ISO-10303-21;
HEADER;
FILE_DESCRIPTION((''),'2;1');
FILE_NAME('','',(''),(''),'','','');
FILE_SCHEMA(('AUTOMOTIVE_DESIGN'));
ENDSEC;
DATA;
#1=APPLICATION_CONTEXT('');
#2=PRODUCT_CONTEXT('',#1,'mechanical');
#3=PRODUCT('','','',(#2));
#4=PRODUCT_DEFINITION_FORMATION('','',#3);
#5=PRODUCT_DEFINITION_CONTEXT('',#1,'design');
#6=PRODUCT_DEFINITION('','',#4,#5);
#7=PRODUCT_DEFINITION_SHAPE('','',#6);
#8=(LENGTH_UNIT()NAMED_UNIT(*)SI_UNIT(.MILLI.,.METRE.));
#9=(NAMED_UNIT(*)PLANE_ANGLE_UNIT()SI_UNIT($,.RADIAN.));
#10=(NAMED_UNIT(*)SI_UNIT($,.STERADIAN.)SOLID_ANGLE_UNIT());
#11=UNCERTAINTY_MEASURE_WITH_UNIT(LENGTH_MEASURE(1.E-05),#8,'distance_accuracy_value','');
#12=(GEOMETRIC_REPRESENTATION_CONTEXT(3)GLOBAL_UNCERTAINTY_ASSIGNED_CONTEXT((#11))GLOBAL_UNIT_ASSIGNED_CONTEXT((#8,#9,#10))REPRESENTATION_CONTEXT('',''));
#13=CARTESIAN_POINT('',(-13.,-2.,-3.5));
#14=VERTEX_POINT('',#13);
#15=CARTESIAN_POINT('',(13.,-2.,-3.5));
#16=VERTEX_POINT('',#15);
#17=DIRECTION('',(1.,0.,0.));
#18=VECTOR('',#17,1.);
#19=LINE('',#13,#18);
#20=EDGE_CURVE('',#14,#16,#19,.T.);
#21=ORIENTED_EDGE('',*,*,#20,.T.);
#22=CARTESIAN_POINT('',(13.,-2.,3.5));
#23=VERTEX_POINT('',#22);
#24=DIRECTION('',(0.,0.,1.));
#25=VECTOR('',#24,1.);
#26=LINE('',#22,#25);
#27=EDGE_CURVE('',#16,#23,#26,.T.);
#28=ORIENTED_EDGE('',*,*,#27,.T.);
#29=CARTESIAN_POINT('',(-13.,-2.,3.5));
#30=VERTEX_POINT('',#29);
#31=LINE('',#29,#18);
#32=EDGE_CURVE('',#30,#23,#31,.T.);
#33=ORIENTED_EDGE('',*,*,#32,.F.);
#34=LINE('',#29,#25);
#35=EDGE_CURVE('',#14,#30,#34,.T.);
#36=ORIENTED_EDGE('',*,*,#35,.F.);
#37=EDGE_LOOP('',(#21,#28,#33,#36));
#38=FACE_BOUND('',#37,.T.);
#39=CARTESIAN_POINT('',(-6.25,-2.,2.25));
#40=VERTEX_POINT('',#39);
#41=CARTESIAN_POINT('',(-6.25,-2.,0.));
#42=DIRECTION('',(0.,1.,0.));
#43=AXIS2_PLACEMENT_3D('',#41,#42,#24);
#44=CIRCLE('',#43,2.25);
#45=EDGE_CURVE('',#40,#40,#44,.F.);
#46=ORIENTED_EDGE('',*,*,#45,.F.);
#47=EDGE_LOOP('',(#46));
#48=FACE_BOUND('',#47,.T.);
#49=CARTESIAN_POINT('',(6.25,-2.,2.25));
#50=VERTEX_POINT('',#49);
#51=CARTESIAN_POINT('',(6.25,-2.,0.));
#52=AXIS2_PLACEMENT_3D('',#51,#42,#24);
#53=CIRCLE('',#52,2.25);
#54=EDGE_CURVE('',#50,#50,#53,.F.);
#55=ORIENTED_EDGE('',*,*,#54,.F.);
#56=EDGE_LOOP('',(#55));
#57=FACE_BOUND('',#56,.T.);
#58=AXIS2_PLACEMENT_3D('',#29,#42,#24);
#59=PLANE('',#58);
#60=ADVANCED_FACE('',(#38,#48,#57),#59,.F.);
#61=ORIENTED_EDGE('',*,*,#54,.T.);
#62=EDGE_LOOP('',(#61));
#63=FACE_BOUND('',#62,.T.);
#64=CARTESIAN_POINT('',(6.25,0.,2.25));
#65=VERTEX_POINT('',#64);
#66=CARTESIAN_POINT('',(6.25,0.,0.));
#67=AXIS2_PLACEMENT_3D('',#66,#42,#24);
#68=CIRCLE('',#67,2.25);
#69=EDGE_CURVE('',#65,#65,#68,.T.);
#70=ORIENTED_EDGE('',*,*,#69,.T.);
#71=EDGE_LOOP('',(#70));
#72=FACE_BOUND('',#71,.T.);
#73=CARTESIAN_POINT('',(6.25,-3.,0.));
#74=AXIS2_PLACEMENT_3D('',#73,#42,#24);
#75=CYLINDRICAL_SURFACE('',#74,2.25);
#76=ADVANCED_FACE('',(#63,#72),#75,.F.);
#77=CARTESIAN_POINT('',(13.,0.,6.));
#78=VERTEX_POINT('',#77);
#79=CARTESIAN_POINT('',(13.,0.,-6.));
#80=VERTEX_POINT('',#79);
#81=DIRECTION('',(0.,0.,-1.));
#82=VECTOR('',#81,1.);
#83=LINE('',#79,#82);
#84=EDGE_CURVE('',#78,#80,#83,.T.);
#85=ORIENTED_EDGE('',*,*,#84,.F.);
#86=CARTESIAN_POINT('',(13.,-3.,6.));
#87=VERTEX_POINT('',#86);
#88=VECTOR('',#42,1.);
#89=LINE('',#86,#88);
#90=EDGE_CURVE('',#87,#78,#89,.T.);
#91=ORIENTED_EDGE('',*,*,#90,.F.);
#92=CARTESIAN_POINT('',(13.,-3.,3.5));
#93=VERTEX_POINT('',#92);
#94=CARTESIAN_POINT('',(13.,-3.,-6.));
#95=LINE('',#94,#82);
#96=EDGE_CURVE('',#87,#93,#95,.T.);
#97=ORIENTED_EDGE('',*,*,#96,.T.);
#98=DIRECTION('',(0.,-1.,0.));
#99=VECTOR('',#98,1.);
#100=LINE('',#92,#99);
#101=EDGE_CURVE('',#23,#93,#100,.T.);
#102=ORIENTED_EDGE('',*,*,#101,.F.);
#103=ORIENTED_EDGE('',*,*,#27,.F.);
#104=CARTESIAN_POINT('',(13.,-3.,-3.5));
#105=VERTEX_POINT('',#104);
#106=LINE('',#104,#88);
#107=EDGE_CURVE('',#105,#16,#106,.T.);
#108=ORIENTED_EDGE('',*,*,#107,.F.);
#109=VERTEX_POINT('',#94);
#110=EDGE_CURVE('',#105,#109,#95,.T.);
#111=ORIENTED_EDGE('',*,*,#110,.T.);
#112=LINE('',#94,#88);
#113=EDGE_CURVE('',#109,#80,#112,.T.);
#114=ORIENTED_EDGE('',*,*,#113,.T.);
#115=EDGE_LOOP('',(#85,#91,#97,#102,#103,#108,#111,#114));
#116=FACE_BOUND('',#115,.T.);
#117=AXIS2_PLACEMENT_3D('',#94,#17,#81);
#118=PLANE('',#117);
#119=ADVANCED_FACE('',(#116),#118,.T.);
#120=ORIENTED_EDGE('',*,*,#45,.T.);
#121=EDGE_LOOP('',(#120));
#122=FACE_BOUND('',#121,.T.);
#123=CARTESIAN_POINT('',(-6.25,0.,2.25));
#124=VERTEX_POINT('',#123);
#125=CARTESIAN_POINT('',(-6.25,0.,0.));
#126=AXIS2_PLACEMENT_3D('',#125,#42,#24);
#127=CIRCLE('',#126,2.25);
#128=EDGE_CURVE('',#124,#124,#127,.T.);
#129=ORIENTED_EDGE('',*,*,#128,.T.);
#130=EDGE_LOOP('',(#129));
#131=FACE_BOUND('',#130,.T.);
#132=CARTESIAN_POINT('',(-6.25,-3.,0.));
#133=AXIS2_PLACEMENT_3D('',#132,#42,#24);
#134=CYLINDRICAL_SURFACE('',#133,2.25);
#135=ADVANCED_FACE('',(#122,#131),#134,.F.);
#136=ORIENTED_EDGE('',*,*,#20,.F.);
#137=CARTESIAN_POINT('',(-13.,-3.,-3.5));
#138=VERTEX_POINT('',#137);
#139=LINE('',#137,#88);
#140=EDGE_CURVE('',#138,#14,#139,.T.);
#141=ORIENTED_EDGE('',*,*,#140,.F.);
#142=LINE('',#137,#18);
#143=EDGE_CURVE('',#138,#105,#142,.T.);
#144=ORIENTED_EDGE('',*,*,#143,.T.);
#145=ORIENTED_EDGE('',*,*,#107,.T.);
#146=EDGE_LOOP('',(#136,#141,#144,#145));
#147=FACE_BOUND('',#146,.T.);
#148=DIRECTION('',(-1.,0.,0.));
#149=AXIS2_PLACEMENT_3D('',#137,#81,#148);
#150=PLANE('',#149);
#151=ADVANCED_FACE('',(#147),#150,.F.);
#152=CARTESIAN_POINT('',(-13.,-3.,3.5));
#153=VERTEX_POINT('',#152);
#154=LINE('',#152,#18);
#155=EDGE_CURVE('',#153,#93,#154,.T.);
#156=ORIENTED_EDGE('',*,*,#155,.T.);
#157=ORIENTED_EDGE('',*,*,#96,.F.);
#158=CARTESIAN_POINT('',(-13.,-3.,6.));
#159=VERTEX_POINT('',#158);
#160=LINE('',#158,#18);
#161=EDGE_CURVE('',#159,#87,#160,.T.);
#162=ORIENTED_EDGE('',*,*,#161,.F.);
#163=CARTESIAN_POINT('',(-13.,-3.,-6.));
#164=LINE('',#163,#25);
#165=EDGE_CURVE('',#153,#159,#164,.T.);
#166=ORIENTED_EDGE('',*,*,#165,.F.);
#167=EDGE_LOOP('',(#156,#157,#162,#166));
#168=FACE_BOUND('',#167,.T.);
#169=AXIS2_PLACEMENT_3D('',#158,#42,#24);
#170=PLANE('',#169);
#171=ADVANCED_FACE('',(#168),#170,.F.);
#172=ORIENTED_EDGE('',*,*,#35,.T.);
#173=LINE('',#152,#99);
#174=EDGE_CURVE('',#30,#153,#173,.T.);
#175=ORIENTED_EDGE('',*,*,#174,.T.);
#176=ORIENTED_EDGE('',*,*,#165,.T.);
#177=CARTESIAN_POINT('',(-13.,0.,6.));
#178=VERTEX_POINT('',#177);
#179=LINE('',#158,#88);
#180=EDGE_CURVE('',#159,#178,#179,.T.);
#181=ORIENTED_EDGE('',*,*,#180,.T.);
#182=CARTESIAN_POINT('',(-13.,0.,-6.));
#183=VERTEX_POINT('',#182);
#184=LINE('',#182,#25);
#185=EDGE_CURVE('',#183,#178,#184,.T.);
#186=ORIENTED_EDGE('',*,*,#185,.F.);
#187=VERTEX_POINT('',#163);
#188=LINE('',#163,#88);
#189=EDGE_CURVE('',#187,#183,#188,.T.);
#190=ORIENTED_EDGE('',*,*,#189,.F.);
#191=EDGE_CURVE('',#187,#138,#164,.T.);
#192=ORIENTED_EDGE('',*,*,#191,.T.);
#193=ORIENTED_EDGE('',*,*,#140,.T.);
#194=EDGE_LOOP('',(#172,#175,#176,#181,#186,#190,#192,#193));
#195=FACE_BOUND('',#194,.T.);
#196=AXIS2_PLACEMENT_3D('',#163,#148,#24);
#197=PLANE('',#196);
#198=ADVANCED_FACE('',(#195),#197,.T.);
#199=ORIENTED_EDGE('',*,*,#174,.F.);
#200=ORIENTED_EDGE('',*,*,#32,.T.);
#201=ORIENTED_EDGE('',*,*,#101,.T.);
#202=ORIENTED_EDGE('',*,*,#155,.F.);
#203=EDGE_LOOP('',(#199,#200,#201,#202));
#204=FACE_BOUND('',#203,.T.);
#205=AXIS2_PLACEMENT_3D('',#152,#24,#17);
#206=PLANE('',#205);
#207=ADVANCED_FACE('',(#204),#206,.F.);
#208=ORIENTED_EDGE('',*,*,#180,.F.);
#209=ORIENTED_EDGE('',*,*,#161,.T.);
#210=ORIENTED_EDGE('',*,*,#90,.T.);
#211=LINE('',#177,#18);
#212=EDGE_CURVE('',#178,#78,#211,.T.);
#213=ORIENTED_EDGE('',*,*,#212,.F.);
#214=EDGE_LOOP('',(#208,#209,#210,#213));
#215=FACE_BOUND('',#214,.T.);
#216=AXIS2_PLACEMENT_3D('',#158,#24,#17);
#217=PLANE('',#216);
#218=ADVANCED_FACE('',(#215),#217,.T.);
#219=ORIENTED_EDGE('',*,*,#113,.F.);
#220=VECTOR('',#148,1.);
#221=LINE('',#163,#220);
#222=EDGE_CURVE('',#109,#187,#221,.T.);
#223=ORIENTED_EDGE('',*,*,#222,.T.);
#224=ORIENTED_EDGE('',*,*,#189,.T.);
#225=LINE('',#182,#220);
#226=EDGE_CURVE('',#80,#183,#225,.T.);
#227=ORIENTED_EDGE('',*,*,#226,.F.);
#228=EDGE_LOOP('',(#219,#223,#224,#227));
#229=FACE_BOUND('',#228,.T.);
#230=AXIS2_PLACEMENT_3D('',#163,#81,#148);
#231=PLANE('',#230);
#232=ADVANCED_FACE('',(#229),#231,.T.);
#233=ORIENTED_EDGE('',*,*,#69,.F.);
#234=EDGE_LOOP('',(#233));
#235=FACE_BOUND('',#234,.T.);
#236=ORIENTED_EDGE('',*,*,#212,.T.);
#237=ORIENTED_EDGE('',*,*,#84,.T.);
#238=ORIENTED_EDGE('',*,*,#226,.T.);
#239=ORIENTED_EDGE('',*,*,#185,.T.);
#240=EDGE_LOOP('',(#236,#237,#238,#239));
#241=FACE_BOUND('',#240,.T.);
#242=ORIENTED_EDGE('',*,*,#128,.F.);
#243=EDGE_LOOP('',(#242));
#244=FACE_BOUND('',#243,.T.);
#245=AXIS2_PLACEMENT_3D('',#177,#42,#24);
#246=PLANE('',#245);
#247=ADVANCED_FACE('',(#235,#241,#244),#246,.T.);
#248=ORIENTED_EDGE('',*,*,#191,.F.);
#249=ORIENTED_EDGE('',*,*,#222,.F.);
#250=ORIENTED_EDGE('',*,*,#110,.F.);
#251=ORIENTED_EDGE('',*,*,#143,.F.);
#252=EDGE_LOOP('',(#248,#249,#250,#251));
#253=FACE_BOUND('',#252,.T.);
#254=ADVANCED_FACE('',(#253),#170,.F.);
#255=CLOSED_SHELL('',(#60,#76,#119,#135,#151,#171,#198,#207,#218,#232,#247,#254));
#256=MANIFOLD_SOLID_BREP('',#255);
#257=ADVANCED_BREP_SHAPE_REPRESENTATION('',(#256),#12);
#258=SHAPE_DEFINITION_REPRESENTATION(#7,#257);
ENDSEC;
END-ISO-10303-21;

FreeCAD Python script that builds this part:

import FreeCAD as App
import Part
import Sketcher
Q = App.Units.Quantity

doc = App.newDocument("Part")
body = doc.addObject("PartDesign::Body", "Body")

sketch1 = doc.addObject("Sketcher::SketchObject", "Sketch")
body.addObject(sketch1)
sketch1.AttachmentSupport = (doc.XZ_Plane, [""])
sketch1.MapMode = "FlatFace"
sketch1.addGeometry(Part.LineSegment(App.Vector(-13, -6, 0), App.Vector(-13, 6, 0)), False)
sketch1.addGeometry(Part.LineSegment(App.Vector(-13, 6, 0), App.Vector(13, 6, 0)), False)
sketch1.addGeometry(Part.LineSegment(App.Vector(13, 6, 0), App.Vector(13, -6, 0)), False)
sketch1.addGeometry(Part.LineSegment(App.Vector(13, -6, 0), App.Vector(-13, -6, 0)), False)
sketch1.addConstraint(Sketcher.Constraint("Coincident", 0, 2, 1, 1))
sketch1.addConstraint(Sketcher.Constraint("Coincident", 1, 2, 2, 1))
sketch1.addConstraint(Sketcher.Constraint("Coincident", 2, 2, 3, 1))
sketch1.addConstraint(Sketcher.Constraint("Coincident", 3, 2, 0, 1))
sketch1.addConstraint(Sketcher.Constraint("Vertical", 0))
sketch1.addConstraint(Sketcher.Constraint("Horizontal", 1))
sketch1.addConstraint(Sketcher.Constraint("Vertical", 2))
sketch1.addConstraint(Sketcher.Constraint("Horizontal", 3))
sketch1.addConstraint(Sketcher.Constraint("Symmetric", 0, 2, 2, 2, -1, 1))
sketch1.addConstraint(Sketcher.Constraint("DistanceX", 1, 1, 1, 2, Q("26 mm")))
sketch1.addConstraint(Sketcher.Constraint("DistanceY", 0, 1, 0, 2, Q("12 mm")))
pad1 = doc.addObject("PartDesign::Pad", "Pad")
body.addObject(pad1)
pad1.Profile = sketch1
pad1.Length = 3

sketch2 = doc.addObject("Sketcher::SketchObject", "Sketch001")
body.addObject(sketch2)
sketch2.AttachmentSupport = (doc.XZ_Plane, [""])
sketch2.MapMode = "FlatFace"
sketch2.addGeometry(Part.Circle(App.Vector(-6.2, 0, 0), App.Vector(0, 0, 1), 2.2), False)
sketch2.addGeometry(Part.Circle(App.Vector(6.2, 0, 0), App.Vector(0, 0, 1), 2.2), False)
sketch2.addConstraint(Sketcher.Constraint("Equal", 0, 1))
sketch2.addConstraint(Sketcher.Constraint("Symmetric", 0, 3, 1, 3, -1, 1))
sketch2.addConstraint(Sketcher.Constraint("PointOnObject", 0, 3, -1))
sketch2.addConstraint(Sketcher.Constraint("Diameter", 0, Q("4.5 mm")))
sketch2.addConstraint(Sketcher.Constraint("DistanceX", 0, 3, 1, 3, Q("12.5 mm")))
pocket1 = doc.addObject("PartDesign::Pocket", "Pocket")
body.addObject(pocket1)
pocket1.Profile = sketch2
pocket1.Type = "ThroughAll"
pocket1.Reversed = True

sketch3 = doc.addObject("Sketcher::SketchObject", "Sketch002")
body.addObject(sketch3)
sketch3.AttachmentSupport = (doc.YZ_Plane, [""])
sketch3.MapMode = "FlatFace"
sketch3.AttachmentOffset = App.Placement(App.Vector(0, 0, 13), App.Rotation())
sketch3.addGeometry(Part.LineSegment(App.Vector(-2, 3.5, 0), App.Vector(-3, 3.5, 0)), False)
sketch3.addGeometry(Part.LineSegment(App.Vector(-3, 3.5, 0), App.Vector(-3, -3.5, 0)), False)
sketch3.addGeometry(Part.LineSegment(App.Vector(-3, -3.5, 0), App.Vector(-2, -3.5, 0)), False)
sketch3.addGeometry(Part.LineSegment(App.Vector(-2, -3.5, 0), App.Vector(-2, 3.5, 0)), False)
sketch3.addConstraint(Sketcher.Constraint("Coincident", 0, 2, 1, 1))
sketch3.addConstraint(Sketcher.Constraint("Coincident", 1, 2, 2, 1))
sketch3.addConstraint(Sketcher.Constraint("Coincident", 2, 2, 3, 1))
sketch3.addConstraint(Sketcher.Constraint("Coincident", 3, 2, 0, 1))
sketch3.addConstraint(Sketcher.Constraint("Horizontal", 0))
sketch3.addConstraint(Sketcher.Constraint("Vertical", 1))
sketch3.addConstraint(Sketcher.Constraint("Horizontal", 2))
sketch3.addConstraint(Sketcher.Constraint("Vertical", 3))
sketch3.addConstraint(Sketcher.Constraint("DistanceX", 0, 2, 0, 1, Q("1 mm")))
sketch3.addConstraint(Sketcher.Constraint("DistanceY", 1, 2, 1, 1, Q("7 mm")))
sketch3.addConstraint(Sketcher.Constraint("DistanceX", 0, 2, -1, 1, Q("3 mm")))
sketch3.addConstraint(Sketcher.Constraint("DistanceY", -1, 1, 0, 2, Q("3.5 mm")))
pocket2 = doc.addObject("PartDesign::Pocket", "Pocket001")
body.addObject(pocket2)
pocket2.Profile = sketch3
pocket2.Type = "ThroughAll"

doc.recompute()
